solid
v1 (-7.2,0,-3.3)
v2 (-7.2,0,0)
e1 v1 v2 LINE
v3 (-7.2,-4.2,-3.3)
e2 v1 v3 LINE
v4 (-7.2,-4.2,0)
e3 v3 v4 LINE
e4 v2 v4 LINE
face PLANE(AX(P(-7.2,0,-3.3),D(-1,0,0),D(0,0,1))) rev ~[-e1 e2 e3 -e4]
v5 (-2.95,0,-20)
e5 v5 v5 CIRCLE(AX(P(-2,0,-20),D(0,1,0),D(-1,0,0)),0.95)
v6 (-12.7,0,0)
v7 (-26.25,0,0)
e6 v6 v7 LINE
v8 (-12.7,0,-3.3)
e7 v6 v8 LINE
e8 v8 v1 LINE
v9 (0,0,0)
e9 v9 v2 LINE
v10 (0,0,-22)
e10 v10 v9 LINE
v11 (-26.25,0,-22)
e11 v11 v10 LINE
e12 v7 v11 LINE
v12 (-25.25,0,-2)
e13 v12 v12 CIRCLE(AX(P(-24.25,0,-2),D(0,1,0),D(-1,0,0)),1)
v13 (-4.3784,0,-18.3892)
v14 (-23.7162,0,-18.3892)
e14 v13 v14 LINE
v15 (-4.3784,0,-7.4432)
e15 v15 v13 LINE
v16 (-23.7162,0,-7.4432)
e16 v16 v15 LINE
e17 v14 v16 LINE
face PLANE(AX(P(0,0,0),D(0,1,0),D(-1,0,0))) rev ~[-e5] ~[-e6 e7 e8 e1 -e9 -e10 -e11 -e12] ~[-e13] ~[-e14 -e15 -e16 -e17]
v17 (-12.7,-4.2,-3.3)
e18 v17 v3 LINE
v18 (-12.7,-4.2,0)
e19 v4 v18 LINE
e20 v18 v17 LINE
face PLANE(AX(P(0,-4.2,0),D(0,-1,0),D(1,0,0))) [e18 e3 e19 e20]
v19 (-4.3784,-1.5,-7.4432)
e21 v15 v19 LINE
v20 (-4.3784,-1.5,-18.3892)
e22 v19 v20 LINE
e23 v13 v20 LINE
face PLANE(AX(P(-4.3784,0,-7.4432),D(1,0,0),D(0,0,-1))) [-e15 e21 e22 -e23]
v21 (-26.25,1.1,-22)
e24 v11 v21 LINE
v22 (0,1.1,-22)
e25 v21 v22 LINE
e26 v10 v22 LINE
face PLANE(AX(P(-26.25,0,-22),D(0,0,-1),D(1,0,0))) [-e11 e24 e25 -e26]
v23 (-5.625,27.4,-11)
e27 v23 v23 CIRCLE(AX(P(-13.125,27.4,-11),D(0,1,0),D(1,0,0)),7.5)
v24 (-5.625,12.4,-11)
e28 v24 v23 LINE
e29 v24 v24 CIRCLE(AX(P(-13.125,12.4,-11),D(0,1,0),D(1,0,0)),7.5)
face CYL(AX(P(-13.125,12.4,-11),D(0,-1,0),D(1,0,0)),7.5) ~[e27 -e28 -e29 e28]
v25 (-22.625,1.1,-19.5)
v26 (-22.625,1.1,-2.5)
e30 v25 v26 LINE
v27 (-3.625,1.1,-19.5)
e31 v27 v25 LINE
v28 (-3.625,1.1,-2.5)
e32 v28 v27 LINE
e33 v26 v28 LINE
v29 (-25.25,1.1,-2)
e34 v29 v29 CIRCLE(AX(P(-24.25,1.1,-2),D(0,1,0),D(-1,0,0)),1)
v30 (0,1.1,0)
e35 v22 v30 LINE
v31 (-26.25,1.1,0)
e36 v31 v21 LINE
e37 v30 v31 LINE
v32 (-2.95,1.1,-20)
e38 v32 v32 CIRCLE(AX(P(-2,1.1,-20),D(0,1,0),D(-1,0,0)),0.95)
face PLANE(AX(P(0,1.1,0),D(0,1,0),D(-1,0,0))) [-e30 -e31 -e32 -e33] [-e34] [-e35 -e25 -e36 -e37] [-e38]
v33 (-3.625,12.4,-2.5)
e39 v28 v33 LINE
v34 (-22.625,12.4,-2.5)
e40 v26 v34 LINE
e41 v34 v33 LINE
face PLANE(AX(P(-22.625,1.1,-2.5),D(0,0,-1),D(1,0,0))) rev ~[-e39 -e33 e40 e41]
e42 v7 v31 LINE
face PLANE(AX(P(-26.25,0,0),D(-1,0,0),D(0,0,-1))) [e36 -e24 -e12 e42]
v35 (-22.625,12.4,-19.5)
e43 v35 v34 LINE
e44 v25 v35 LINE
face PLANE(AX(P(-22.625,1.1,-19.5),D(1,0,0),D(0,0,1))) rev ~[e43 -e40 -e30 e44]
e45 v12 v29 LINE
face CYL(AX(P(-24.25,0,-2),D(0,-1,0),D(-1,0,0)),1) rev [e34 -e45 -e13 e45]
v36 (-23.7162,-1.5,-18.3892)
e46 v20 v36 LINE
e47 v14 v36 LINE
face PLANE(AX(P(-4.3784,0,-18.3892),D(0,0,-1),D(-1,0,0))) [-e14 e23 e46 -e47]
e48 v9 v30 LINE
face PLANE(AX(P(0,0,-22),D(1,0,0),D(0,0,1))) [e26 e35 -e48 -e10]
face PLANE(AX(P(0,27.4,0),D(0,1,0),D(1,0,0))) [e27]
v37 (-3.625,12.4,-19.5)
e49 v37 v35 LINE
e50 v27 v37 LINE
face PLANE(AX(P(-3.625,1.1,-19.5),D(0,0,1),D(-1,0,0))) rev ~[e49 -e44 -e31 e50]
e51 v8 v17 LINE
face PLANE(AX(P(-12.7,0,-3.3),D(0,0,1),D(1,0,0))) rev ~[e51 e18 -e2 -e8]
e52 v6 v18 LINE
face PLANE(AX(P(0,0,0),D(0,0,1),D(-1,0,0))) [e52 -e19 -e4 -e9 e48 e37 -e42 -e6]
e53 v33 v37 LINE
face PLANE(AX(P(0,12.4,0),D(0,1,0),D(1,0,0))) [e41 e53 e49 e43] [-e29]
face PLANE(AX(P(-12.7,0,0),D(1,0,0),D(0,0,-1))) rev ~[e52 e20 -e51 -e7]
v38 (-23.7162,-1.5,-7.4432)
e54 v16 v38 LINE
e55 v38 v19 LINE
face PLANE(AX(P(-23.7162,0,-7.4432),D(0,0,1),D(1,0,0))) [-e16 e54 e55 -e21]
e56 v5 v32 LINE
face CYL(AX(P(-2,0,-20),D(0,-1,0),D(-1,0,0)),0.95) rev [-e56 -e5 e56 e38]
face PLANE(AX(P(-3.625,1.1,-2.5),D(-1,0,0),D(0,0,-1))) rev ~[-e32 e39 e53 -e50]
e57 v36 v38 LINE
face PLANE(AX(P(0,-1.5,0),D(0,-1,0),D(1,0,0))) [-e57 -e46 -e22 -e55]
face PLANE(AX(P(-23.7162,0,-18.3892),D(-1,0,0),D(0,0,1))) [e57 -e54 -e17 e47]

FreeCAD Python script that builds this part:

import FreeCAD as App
import Part
import Sketcher
from FreeCAD import Vector

doc = App.newDocument("Part")
params = doc.addObject("Spreadsheet::Sheet", "Params")
for row, (alias, value) in enumerate([
    ("sketch1_diameter", "2 mm"),
    ("sketch1_diameter2", "1.9 mm"),
    ("sketch1_height", "22 mm"),
    ("sketch1_width", "26.25 mm"),
    ("pad1_length", "1.1 mm"),
    ("sketch2_width", "19 mm"),
    ("sketch2_height", "17 mm"),
    ("pad2_length", "11.3 mm"),
    ("sketch3_diameter", "15 mm"),
    ("pad3_length", "15 mm"),
    ("sketch4_width", "5.5 mm"),
    ("sketch4_height", "3.3 mm"),
    ("pad4_length", "4.2 mm"),
    ("pad5_length", "1.5 mm"),
], start=1):
    params.set(f"A{row}", alias)
    params.set(f"B{row}", "=" + value)
    params.setAlias(f"B{row}", alias)

body = doc.addObject("PartDesign::Body", "Body")

sketch1 = body.newObject("Sketcher::SketchObject", "Sketch")
sketch1.AttachmentSupport = (doc.getObject("XZ_Plane"), [""])
sketch1.MapMode = "FlatFace"
sketch1.addGeometry(Part.LineSegment(Vector(-26.2, 0, 0), Vector(0, 0, 0)), False)
sketch1.addGeometry(Part.LineSegment(Vector(0, 0, 0), Vector(0, -22, 0)), False)
sketch1.addGeometry(Part.LineSegment(Vector(0, -22, 0), Vector(-26.2, -22, 0)), False)
sketch1.addGeometry(Part.LineSegment(Vector(-26.2, -22, 0), Vector(-26.2, 0, 0)), False)
sketch1.addGeometry(Part.Circle(Vector(-2, -20, 0), Vector(0, 0, 1), 0.9), False)
sketch1.addGeometry(Part.Circle(Vector(-24.2, -2, 0), Vector(0, 0, 1), 1), False)
sketch1.addConstraint(Sketcher.Constraint("Coincident", 0, 2, 1, 1))
sketch1.addConstraint(Sketcher.Constraint("Coincident", 1, 2, 2, 1))
sketch1.addConstraint(Sketcher.Constraint("Coincident", 2, 2, 3, 1))
sketch1.addConstraint(Sketcher.Constraint("Coincident", 3, 2, 0, 1))
sketch1.addConstraint(Sketcher.Constraint("Horizontal", 0))
sketch1.addConstraint(Sketcher.Constraint("Vertical", 1))
sketch1.addConstraint(Sketcher.Constraint("Horizontal", 2))
sketch1.addConstraint(Sketcher.Constraint("Vertical", 3))
sketch1.addConstraint(Sketcher.Constraint("Coincident", 0, 2, -1, 1))
sketch1.addConstraint(Sketcher.Constraint("Diameter", 5, 2.0))
sketch1.addConstraint(Sketcher.Constraint("Diameter", 4, 1.9))
sketch1.addConstraint(Sketcher.Constraint("DistanceY", 1, 2, 1, 1, 22.0))
sketch1.addConstraint(Sketcher.Constraint("DistanceX", 4, 3, -1, 1, 2.0))
sketch1.addConstraint(Sketcher.Constraint("DistanceY", 5, 3, -1, 1, 2.0))
sketch1.addConstraint(Sketcher.Constraint("DistanceY", 1, 2, 4, 3, 2.0))
sketch1.addConstraint(Sketcher.Constraint("DistanceX", 2, 2, 5, 3, 2.0))
sketch1.addConstraint(Sketcher.Constraint("DistanceX", 0, 1, 0, 2, 26.25))
sketch1.setExpression("Constraints[9]", "Params.sketch1_diameter")
sketch1.setExpression("Constraints[10]", "Params.sketch1_diameter2")
sketch1.setExpression("Constraints[11]", "Params.sketch1_height")
sketch1.setExpression("Constraints[16]", "Params.sketch1_width")
pad1 = body.newObject("PartDesign::Pad", "Pad")
pad1.Profile = sketch1
pad1.setExpression("Length", "Params.pad1_length")
pad1.Reversed = True

sketch2 = body.newObject("Sketcher::SketchObject", "Sketch001")
sketch2.AttachmentSupport = (doc.getObject("XZ_Plane"), [""])
sketch2.MapMode = "FlatFace"
sketch2.AttachmentOffset = App.Placement(Vector(0, 0, -1.1), App.Rotation())
sketch2.addGeometry(Part.LineSegment(Vector(-23, -20, 0), Vector(-23, -2, 0)), False)
sketch2.addGeometry(Part.LineSegment(Vector(-23, -2, 0), Vector(-4, -2, 0)), False)
sketch2.addGeometry(Part.LineSegment(Vector(-4, -2, 0), Vector(-4, -20, 0)), False)
sketch2.addGeometry(Part.LineSegment(Vector(-4, -20, 0), Vector(-23, -20, 0)), False)
sketch2.addConstraint(Sketcher.Constraint("Coincident", 0, 2, 1, 1))
sketch2.addConstraint(Sketcher.Constraint("Coincident", 1, 2, 2, 1))
sketch2.addConstraint(Sketcher.Constraint("Coincident", 2, 2, 3, 1))
sketch2.addConstraint(Sketcher.Constraint("Coincident", 3, 2, 0, 1))
sketch2.addConstraint(Sketcher.Constraint("Vertical", 0))
sketch2.addConstraint(Sketcher.Constraint("Horizontal", 1))
sketch2.addConstraint(Sketcher.Constraint("Vertical", 2))
sketch2.addConstraint(Sketcher.Constraint("Horizontal", 3))
sketch2.addConstraint(Sketcher.Constraint("DistanceX", 1, 1, 1, 2, 19.0))
sketch2.addConstraint(Sketcher.Constraint("DistanceY", 0, 1, 0, 2, 17.0))
sketch2.addConstraint(Sketcher.Constraint("DistanceY", 0, 2, -1, 1, 2.5))
sketch2.addConstraint(Sketcher.Constraint("DistanceX", 0, 2, -1, 1, 22.625))
sketch2.setExpression("Constraints[8]", "Params.sketch2_width")
sketch2.setExpression("Constraints[9]", "Params.sketch2_height")
pad2 = body.newObject("PartDesign::Pad", "Pad001")
pad2.Profile = sketch2
pad2.setExpression("Length", "Params.pad2_length")
pad2.Reversed = True

sketch3 = body.newObject("Sketcher::SketchObject", "Sketch002")
sketch3.AttachmentSupport = (doc.getObject("XZ_Plane"), [""])
sketch3.MapMode = "FlatFace"
sketch3.AttachmentOffset = App.Placement(Vector(0, 0, -12.4), App.Rotation())
sketch3.addGeometry(Part.Circle(Vector(-13, -11, 0), Vector(0, 0, 1), 8), False)
sketch3.addConstraint(Sketcher.Constraint("Diameter", 0, 15.0))
sketch3.addConstraint(Sketcher.Constraint("DistanceY", 0, 3, -1, 1, 11.0))
sketch3.addConstraint(Sketcher.Constraint("DistanceX", 0, 3, -1, 1, 13.125))
sketch3.setExpression("Constraints[0]", "Params.sketch3_diameter")
pad3 = body.newObject("PartDesign::Pad", "Pad002")
pad3.Profile = sketch3
pad3.setExpression("Length", "Params.pad3_length")
pad3.Reversed = True

sketch4 = body.newObject("Sketcher::SketchObject", "Sketch003")
sketch4.AttachmentSupport = (doc.getObject("XZ_Plane"), [""])
sketch4.MapMode = "FlatFace"
sketch4.addGeometry(Part.LineSegment(Vector(-7.2, -3.3, 0), Vector(-7.2, 0, 0)), False)
sketch4.addGeometry(Part.LineSegment(Vector(-7.2, 0, 0), Vector(-12.7, 0, 0)), False)
sketch4.addGeometry(Part.LineSegment(Vector(-12.7, 0, 0), Vector(-12.7, -3.3, 0)), False)
sketch4.addGeometry(Part.LineSegment(Vector(-12.7, -3.3, 0), Vector(-7.2, -3.3, 0)), False)
sketch4.addConstraint(Sketcher.Constraint("Coincident", 0, 2, 1, 1))
sketch4.addConstraint(Sketcher.Constraint("Coincident", 1, 2, 2, 1))
sketch4.addConstraint(Sketcher.Constraint("Coincident", 2, 2, 3, 1))
sketch4.addConstraint(Sketcher.Constraint("Coincident", 3, 2, 0, 1))
sketch4.addConstraint(Sketcher.Constraint("Vertical", 0))
sketch4.addConstraint(Sketcher.Constraint("Horizontal", 1))
sketch4.addConstraint(Sketcher.Constraint("Vertical", 2))
sketch4.addConstraint(Sketcher.Constraint("Horizontal", 3))
sketch4.addConstraint(Sketcher.Constraint("PointOnObject", 0, 2, -1))
sketch4.addConstraint(Sketcher.Constraint("DistanceX", 1, 2, 1, 1, 5.5))
sketch4.addConstraint(Sketcher.Constraint("DistanceY", 0, 1, 0, 2, 3.3))
sketch4.addConstraint(Sketcher.Constraint("DistanceX", 0, 2, -1, 1, 7.2))
sketch4.setExpression("Constraints[9]", "Params.sketch4_width")
sketch4.setExpression("Constraints[10]", "Params.sketch4_height")
pad4 = body.newObject("PartDesign::Pad", "Pad003")
pad4.Profile = sketch4
pad4.setExpression("Length", "Params.pad4_length")

sketch5 = body.newObject("Sketcher::SketchObject", "Sketch004")
sketch5.AttachmentSupport = (doc.getObject("XZ_Plane"), [""])
sketch5.MapMode = "FlatFace"
sketch5.addGeometry(Part.LineSegment(Vector(-24, -18, 0), Vector(-4, -18, 0)), False)
sketch5.addGeometry(Part.LineSegment(Vector(-4, -18, 0), Vector(-4, -7, 0)), False)
sketch5.addGeometry(Part.LineSegment(Vector(-4, -7, 0), Vector(-24, -7, 0)), False)
sketch5.addGeometry(Part.LineSegment(Vector(-24, -7, 0), Vector(-24, -18, 0)), False)
sketch5.addConstraint(Sketcher.Constraint("Coincident", 0, 2, 1, 1))
sketch5.addConstraint(Sketcher.Constraint("Coincident", 1, 2, 2, 1))
sketch5.addConstraint(Sketcher.Constraint("Coincident", 2, 2, 3, 1))
sketch5.addConstraint(Sketcher.Constraint("Coincident", 3, 2, 0, 1))
sketch5.addConstraint(Sketcher.Constraint("Horizontal", 0))
sketch5.addConstraint(Sketcher.Constraint("Vertical", 1))
sketch5.addConstraint(Sketcher.Constraint("Horizontal", 2))
sketch5.addConstraint(Sketcher.Constraint("Vertical", 3))
sketch5.addConstraint(Sketcher.Constraint("DistanceY", 1, 1, 1, 2, 10.946))
sketch5.addConstraint(Sketcher.Constraint("DistanceX", 0, 1, 0, 2, 19.3378))
sketch5.addConstraint(Sketcher.Constraint("DistanceX", 0, 2, -1, 1, 4.3784))
sketch5.addConstraint(Sketcher.Constraint("DistanceY", 0, 2, -1, 1, 18.3892))
pad5 = body.newObject("PartDesign::Pad", "Pad004")
pad5.Profile = sketch5
pad5.setExpression("Length", "Params.pad5_length")

doc.recompute()
